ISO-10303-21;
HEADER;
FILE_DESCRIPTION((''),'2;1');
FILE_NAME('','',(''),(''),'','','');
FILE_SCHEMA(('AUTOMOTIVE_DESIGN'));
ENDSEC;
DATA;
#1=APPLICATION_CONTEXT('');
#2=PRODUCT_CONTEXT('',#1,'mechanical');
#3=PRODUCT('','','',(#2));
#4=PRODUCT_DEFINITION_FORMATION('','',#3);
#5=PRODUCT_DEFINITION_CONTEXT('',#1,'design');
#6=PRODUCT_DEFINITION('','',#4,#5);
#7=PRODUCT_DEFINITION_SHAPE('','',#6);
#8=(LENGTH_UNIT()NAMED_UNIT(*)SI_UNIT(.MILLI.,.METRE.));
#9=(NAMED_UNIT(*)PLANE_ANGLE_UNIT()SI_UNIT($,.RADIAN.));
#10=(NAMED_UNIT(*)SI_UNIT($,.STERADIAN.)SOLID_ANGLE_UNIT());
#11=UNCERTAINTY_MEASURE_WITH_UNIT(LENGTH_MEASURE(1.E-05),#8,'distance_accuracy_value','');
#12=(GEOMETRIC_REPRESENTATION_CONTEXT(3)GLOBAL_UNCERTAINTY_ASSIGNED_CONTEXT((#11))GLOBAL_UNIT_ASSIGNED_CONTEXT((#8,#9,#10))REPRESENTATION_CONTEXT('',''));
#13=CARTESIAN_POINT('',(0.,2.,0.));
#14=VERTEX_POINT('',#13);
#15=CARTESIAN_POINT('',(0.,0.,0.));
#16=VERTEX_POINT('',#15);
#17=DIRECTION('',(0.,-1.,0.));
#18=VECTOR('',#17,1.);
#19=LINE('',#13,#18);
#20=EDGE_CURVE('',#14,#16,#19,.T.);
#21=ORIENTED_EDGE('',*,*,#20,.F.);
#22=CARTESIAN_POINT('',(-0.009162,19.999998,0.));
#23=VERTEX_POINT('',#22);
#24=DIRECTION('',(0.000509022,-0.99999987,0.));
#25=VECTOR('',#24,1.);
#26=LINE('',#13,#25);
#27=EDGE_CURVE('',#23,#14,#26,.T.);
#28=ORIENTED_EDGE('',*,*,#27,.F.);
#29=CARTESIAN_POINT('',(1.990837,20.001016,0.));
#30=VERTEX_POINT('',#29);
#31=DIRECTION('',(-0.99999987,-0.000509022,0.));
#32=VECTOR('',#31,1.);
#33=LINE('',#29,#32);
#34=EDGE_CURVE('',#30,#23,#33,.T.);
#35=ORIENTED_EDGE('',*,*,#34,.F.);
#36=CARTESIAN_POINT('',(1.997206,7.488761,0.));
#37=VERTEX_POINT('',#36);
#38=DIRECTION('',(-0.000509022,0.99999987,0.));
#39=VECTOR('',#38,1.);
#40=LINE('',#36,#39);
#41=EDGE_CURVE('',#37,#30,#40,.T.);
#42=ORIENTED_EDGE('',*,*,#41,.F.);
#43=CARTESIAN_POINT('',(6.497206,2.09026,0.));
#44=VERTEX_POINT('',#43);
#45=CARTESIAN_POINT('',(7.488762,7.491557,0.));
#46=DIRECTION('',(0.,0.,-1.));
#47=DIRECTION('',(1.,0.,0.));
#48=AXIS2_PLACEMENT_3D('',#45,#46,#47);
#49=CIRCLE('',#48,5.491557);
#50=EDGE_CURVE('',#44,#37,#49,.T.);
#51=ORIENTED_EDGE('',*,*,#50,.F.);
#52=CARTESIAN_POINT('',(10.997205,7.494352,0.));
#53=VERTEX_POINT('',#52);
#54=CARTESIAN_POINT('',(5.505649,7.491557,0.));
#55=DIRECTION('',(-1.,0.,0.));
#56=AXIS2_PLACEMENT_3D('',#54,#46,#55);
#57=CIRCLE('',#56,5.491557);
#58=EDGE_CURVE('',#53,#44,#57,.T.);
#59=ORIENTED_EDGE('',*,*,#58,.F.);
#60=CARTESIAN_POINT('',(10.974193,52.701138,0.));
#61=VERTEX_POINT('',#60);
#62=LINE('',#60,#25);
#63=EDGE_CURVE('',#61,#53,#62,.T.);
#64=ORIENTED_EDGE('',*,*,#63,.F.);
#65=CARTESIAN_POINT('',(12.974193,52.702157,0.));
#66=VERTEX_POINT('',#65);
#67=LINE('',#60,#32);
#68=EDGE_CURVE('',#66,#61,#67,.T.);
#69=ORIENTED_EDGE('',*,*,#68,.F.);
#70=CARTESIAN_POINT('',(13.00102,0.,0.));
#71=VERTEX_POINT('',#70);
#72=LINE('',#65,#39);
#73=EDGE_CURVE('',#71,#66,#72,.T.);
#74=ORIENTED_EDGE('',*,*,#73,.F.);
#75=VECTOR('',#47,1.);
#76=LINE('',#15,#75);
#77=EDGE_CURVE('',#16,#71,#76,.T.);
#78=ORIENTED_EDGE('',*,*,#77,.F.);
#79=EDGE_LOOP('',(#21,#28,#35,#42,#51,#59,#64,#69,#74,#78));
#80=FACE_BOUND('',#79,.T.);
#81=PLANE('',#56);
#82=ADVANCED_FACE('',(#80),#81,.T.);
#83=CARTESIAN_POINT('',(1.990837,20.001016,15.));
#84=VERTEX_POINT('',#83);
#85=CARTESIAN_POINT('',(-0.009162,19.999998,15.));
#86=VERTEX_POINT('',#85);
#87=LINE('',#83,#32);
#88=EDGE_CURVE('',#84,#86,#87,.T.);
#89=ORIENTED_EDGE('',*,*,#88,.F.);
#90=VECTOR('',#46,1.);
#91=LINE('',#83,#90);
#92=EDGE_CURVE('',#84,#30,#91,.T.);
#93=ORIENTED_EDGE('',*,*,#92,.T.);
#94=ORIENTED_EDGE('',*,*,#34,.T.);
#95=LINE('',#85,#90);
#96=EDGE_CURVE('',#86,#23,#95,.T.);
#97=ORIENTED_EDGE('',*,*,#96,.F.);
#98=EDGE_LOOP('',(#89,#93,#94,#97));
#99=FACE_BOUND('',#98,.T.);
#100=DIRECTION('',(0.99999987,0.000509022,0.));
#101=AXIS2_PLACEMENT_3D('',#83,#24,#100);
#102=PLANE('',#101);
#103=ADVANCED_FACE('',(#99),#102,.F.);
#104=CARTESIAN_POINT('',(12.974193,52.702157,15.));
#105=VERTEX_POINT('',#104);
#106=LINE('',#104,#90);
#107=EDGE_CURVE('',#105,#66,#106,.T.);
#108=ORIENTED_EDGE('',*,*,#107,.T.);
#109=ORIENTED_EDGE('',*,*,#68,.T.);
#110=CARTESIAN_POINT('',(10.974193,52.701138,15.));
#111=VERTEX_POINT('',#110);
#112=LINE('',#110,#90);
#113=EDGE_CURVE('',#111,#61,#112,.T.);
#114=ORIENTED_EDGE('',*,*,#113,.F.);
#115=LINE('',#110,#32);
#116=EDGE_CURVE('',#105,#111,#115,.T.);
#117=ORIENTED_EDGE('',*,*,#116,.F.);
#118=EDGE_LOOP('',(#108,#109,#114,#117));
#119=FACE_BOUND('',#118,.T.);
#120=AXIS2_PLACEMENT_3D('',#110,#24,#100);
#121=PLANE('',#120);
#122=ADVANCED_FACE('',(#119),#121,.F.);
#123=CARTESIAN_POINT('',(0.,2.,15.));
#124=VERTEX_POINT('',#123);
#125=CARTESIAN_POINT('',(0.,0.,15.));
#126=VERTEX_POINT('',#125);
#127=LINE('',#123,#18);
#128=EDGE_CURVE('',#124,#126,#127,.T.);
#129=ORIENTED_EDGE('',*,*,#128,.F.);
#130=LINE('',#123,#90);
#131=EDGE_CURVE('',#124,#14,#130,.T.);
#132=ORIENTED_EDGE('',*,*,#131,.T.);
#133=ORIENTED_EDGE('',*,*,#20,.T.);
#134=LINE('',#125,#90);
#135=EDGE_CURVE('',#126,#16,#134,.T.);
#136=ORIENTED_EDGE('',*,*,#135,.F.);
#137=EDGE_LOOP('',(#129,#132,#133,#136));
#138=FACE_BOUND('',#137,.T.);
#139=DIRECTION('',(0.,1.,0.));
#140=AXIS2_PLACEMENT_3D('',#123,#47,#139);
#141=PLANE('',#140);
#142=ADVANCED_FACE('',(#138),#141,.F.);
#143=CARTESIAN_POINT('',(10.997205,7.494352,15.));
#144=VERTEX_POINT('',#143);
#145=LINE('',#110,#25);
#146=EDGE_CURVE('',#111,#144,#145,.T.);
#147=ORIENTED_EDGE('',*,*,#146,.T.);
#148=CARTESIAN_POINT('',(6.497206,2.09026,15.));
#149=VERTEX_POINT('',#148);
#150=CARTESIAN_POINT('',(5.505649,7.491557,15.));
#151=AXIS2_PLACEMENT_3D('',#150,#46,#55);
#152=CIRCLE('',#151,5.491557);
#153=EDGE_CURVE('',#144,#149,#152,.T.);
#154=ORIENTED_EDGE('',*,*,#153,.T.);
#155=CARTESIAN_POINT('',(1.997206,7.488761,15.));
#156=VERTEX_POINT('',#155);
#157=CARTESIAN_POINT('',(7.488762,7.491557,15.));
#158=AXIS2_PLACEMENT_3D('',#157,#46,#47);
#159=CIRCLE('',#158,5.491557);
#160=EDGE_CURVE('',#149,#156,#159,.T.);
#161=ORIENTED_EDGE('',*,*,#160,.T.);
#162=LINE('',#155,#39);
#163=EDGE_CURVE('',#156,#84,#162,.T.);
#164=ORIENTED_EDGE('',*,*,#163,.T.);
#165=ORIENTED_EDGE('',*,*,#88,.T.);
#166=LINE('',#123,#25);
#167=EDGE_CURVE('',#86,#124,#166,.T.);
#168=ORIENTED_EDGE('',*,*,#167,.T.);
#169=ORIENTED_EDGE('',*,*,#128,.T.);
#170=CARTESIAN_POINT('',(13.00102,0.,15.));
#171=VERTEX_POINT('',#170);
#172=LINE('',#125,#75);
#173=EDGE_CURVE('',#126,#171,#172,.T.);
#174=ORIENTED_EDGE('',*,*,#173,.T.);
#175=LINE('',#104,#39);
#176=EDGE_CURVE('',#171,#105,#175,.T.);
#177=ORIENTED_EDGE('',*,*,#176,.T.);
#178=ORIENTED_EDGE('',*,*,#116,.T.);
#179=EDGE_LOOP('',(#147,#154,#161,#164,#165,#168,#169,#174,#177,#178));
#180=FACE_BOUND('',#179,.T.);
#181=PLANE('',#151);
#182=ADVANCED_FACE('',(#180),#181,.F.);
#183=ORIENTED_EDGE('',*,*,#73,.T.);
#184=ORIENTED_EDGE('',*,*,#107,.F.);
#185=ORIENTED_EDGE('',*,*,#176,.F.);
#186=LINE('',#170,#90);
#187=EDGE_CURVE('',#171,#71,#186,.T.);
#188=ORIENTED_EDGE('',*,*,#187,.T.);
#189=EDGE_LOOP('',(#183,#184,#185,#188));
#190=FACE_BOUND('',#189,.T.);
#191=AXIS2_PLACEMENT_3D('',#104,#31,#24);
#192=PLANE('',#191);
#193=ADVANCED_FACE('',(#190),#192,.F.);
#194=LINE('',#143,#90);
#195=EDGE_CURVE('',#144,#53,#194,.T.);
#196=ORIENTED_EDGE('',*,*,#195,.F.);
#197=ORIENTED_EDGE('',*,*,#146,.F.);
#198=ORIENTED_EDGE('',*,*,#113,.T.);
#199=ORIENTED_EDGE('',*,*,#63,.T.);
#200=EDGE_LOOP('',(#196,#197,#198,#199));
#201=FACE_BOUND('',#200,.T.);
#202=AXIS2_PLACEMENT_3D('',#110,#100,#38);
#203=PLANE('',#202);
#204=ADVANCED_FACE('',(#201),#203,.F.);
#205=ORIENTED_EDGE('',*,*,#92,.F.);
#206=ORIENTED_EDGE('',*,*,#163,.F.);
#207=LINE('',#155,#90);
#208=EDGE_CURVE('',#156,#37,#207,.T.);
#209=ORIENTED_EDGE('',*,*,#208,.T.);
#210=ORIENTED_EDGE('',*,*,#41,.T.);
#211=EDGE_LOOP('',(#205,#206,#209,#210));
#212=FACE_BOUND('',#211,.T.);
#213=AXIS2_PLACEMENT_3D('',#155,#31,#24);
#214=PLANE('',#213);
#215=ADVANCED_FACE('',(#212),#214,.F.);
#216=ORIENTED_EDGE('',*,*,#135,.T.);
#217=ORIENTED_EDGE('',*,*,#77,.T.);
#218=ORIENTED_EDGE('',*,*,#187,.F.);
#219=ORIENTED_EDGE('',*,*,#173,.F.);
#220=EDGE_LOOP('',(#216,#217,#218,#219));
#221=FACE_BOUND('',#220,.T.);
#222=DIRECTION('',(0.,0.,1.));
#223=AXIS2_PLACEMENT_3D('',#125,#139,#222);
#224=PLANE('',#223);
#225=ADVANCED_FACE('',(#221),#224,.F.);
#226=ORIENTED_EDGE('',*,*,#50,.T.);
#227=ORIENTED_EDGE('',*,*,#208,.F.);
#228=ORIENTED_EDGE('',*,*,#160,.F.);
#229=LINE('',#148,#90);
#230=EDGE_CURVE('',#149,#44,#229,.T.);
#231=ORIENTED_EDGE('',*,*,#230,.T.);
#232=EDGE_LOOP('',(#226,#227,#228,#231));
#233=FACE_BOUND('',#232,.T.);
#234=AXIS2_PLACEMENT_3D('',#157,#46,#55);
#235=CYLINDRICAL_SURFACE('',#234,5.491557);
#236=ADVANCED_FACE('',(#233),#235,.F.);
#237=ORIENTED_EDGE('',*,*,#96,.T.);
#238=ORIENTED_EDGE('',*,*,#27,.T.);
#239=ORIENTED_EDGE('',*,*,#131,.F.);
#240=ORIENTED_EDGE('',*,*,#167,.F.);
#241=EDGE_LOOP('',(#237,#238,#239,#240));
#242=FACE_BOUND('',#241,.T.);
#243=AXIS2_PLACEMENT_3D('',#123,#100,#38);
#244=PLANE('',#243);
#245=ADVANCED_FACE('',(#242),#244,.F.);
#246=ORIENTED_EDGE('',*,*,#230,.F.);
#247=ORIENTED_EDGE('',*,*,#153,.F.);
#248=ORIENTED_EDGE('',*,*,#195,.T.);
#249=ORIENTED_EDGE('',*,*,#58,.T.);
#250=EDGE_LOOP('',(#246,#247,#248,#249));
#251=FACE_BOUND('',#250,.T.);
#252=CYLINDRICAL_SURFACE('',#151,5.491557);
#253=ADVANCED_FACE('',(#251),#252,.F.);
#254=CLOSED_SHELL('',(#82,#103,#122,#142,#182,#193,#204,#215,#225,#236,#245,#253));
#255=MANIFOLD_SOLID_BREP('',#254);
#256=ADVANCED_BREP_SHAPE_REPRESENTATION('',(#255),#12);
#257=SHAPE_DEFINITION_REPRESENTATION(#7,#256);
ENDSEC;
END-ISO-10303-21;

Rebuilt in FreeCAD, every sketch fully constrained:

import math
import FreeCAD as App
import Part
import Sketcher
from FreeCAD import Vector

doc = App.newDocument("Part")
body = doc.addObject("PartDesign::Body", "Body")

sketch1 = body.newObject("Sketcher::SketchObject", "Sketch")
sketch1.AttachmentSupport = (doc.getObject("XY_Plane"), [""])
sketch1.MapMode = "FlatFace"
sketch1.addGeometry([
    Part.LineSegment(Vector(0, 0, 0), Vector(13, 0, 0)),
    Part.LineSegment(Vector(13, 0, 0), Vector(13, 52.7, 0)),
    Part.LineSegment(Vector(13, 52.7, 0), Vector(11, 52.7, 0)),
    Part.LineSegment(Vector(11, 52.7, 0), Vector(11, 7.5, 0)),
    Part.ArcOfCircle(Part.Circle(Vector(5.5, 7.5, 0), Vector(0, 0, 1), 5.5), math.radians(-80), math.radians(0)),
    Part.ArcOfCircle(Part.Circle(Vector(7.5, 7.5, 0), Vector(0, 0, 1), 5.5), math.radians(-180), math.radians(-100)),
    Part.LineSegment(Vector(2, 7.5, 0), Vector(2, 20, 0)),
    Part.LineSegment(Vector(2, 20, 0), Vector(0, 20, 0)),
    Part.LineSegment(Vector(0, 20, 0), Vector(0, 2, 0)),
    Part.LineSegment(Vector(0, 2, 0), Vector(0, 0, 0)),
], False)
sketch1.addConstraint([
    Sketcher.Constraint("Coincident", 0, 2, 1, 1),
    Sketcher.Constraint("Coincident", 1, 2, 2, 1),
    Sketcher.Constraint("Coincident", 2, 2, 3, 1),
    Sketcher.Constraint("Tangent", 3, 2, 4, 2),
    Sketcher.Constraint("Coincident", 4, 1, 5, 2),
    Sketcher.Constraint("Tangent", 5, 1, 6, 1),
    Sketcher.Constraint("Coincident", 6, 2, 7, 1),
    Sketcher.Constraint("Coincident", 7, 2, 8, 1),
    Sketcher.Constraint("Coincident", 8, 2, 9, 1),
    Sketcher.Constraint("Coincident", 9, 2, 0, 1),
    Sketcher.Constraint("Horizontal", 0),
    Sketcher.Constraint("Vertical", 9),
    Sketcher.Constraint("Coincident", 9, 2, -1, 1),
    Sketcher.Constraint("Equal", 4, 5),
    Sketcher.Constraint("Perpendicular", 1, 2),
    Sketcher.Constraint("Perpendicular", 2, 3),
    Sketcher.Constraint("Parallel", 3, 6),
    Sketcher.Constraint("Perpendicular", 6, 7),
    Sketcher.Constraint("Perpendicular", 7, 8),
    Sketcher.Constraint("Horizontal", 4, 3, 5, 3),
    Sketcher.Constraint("Equal", 2, 7),
    Sketcher.Constraint("DistanceY", 9, 2, 9, 1, 2.0),
    Sketcher.Constraint("Distance", 2, 2.0),
    Sketcher.Constraint("Distance", 8, 18.0),
    Sketcher.Constraint("DistanceX", 5, 1, 3, 2, 8.999998),
    Sketcher.Constraint("Radius", 4, 5.491557),
    Sketcher.Constraint("DistanceX", 0, 1, 0, 2, 13.00102),
    Sketcher.Constraint("DistanceY", 5, 3, 1, 2, 45.2106),
    Sketcher.Constraint("DistanceY", -1, 1, 2, 2, 52.701138),
])
pad1 = body.newObject("PartDesign::Pad", "Pad")
pad1.Profile = sketch1
pad1.Length = 15

doc.recompute()
